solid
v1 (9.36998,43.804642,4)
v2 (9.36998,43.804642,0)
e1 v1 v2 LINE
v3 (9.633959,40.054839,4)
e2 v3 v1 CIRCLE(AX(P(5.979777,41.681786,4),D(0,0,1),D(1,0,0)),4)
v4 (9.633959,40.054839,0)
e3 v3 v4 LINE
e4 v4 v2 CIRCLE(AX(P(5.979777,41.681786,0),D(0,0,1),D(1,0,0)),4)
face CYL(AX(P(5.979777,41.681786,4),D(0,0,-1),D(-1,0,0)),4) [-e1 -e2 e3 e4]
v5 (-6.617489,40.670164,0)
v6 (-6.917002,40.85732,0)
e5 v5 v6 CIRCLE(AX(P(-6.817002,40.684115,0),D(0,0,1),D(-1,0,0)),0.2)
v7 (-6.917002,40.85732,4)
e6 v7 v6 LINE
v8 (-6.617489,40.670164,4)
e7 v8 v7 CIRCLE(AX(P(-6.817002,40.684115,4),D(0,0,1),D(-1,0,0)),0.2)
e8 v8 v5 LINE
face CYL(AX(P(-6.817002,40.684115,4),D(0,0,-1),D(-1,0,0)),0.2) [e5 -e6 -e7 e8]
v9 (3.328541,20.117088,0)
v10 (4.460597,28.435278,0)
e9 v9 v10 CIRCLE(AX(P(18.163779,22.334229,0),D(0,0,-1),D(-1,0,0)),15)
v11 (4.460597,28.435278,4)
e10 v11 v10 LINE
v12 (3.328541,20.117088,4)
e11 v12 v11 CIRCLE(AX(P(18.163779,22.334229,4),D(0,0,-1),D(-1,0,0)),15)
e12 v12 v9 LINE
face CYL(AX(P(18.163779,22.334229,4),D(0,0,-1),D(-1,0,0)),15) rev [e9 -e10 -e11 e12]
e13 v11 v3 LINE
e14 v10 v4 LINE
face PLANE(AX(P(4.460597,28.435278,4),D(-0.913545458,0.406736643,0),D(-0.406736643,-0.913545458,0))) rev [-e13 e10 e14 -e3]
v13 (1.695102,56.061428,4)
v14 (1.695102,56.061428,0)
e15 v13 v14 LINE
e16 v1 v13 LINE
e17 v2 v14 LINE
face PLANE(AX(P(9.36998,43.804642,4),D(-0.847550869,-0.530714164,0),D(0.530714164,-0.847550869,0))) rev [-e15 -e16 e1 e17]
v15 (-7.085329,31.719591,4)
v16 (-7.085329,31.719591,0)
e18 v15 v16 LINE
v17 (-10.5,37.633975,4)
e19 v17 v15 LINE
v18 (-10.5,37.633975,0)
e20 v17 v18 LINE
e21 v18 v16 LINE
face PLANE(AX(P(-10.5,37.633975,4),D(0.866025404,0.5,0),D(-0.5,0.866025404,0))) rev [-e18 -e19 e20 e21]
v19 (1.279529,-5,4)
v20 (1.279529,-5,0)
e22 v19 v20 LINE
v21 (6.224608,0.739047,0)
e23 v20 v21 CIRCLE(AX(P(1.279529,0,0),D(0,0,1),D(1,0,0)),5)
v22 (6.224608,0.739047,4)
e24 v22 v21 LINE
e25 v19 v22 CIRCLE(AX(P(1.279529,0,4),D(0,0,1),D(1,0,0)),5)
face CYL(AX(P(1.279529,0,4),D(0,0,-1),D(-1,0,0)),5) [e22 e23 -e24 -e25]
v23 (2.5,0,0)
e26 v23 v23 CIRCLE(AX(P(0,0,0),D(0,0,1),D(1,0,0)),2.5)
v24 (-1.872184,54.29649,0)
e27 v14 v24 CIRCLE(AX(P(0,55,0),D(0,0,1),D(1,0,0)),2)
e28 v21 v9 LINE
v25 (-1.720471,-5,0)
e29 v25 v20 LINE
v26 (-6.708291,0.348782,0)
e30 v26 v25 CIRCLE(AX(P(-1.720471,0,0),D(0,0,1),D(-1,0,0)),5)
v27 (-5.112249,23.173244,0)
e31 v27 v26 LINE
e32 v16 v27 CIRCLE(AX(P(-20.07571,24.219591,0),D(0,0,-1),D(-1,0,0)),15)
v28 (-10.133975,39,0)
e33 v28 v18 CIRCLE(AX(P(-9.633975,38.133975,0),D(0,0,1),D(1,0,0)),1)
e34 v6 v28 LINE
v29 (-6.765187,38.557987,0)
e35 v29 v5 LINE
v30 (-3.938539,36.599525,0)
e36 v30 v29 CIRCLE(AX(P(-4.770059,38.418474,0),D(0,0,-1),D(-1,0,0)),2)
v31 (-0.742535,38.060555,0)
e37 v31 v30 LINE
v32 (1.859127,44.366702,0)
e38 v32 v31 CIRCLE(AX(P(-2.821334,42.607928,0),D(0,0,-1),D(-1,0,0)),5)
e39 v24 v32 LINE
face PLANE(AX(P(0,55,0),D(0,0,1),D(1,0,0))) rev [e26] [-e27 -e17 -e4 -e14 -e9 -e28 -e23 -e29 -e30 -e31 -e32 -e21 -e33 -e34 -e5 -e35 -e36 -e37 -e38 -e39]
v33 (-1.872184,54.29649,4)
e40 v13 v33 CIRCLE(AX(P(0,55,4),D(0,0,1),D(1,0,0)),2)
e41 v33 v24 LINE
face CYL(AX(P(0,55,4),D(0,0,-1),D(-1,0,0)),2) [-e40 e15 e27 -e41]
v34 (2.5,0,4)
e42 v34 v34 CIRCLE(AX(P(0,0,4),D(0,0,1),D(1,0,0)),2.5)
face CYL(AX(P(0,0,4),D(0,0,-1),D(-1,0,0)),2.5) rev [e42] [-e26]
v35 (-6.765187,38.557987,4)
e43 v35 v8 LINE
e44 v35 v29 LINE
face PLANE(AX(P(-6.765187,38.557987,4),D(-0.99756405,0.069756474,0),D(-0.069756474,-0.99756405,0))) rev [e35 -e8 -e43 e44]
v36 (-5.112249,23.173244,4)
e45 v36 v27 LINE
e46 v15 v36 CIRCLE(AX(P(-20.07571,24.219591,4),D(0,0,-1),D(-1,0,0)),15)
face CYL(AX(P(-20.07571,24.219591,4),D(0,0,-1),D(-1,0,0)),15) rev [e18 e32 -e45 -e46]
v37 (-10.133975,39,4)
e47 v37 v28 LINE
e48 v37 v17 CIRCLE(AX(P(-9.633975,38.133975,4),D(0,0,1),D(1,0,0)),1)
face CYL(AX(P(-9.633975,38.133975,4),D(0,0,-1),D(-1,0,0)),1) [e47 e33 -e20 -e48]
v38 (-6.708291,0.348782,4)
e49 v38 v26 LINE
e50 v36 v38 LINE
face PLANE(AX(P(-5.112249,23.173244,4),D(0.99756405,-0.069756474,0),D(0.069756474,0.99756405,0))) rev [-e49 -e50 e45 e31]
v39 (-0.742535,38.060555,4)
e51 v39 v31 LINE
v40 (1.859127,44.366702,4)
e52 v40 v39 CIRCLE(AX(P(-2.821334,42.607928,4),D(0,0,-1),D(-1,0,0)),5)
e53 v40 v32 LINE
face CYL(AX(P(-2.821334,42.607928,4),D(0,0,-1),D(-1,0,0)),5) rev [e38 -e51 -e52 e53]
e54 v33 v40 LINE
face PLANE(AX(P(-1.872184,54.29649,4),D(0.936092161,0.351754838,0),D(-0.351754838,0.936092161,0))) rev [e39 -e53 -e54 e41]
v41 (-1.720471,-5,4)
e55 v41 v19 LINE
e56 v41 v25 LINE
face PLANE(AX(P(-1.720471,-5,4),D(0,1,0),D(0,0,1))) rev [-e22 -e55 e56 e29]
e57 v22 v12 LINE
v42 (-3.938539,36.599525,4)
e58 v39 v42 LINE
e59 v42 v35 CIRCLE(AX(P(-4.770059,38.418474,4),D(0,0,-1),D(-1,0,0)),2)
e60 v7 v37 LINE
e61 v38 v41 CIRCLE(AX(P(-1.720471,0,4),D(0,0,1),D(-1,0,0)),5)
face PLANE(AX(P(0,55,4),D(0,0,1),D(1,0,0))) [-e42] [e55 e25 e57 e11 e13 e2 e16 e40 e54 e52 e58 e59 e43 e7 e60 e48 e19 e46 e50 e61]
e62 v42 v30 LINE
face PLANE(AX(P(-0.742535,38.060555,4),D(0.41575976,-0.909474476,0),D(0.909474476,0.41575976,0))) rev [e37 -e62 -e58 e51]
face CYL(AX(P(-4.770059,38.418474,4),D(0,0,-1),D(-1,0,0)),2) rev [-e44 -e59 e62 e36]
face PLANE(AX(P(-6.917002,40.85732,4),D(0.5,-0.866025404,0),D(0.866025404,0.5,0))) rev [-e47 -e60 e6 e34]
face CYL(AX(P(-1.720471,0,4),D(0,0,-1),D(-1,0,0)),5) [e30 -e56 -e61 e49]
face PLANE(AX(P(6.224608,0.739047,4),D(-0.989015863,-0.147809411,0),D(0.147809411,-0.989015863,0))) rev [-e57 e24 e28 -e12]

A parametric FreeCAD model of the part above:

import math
import FreeCAD as App
import Part
import Sketcher

V = App.Vector
Q = App.Units.Quantity

doc = App.newDocument("Part")
body = doc.addObject("PartDesign::Body", "Body")

sketch1 = body.newObject("Sketcher::SketchObject", "Sketch")
sketch1.AttachmentSupport = (doc.getObject("XY_Plane"), [""])
sketch1.MapMode = "FlatFace"
sketch1.addGeometry(Part.LineSegment(V(-1.72, -5, 0), V(1.28, -5, 0)), False)
sketch1.addGeometry(Part.ArcOfCircle(Part.Circle(V(1.28, 0, 0), V(0, 0, 1), 5), math.radians(-90), math.radians(8)), False)
sketch1.addGeometry(Part.LineSegment(V(6.22, 0.74, 0), V(3.33, 20.12, 0)), False)
sketch1.addGeometry(Part.ArcOfCircle(Part.Circle(V(18.16, 22.33, 0), V(0, 0, 1), 15), math.radians(156), math.radians(188)), False)
sketch1.addGeometry(Part.LineSegment(V(4.46, 28.44, 0), V(9.63, 40.05, 0)), False)
sketch1.addGeometry(Part.ArcOfCircle(Part.Circle(V(5.98, 41.68, 0), V(0, 0, 1), 4), math.radians(-24), math.radians(32)), False)
sketch1.addGeometry(Part.LineSegment(V(9.37, 43.8, 0), V(1.7, 56.06, 0)), False)
sketch1.addGeometry(Part.ArcOfCircle(Part.Circle(V(0, 55, 0), V(0, 0, 1), 2), math.radians(32), math.radians(201)), False)
sketch1.addGeometry(Part.LineSegment(V(-1.87, 54.3, 0), V(1.86, 44.37, 0)), False)
sketch1.addGeometry(Part.ArcOfCircle(Part.Circle(V(-2.82, 42.61, 0), V(0, 0, 1), 5), math.radians(-65), math.radians(21)), False)
sketch1.addGeometry(Part.LineSegment(V(-0.74, 38.06, 0), V(-3.94, 36.6, 0)), False)
sketch1.addGeometry(Part.ArcOfCircle(Part.Circle(V(-4.77, 38.42, 0), V(0, 0, 1), 2), math.radians(176), math.radians(295)), False)
sketch1.addGeometry(Part.LineSegment(V(-6.77, 38.56, 0), V(-6.62, 40.67, 0)), False)
sketch1.addGeometry(Part.ArcOfCircle(Part.Circle(V(-6.82, 40.68, 0), V(0, 0, 1), 0.2), math.radians(-4), math.radians(120)), False)
sketch1.addGeometry(Part.LineSegment(V(-6.92, 40.86, 0), V(-10.13, 39, 0)), False)
sketch1.addGeometry(Part.ArcOfCircle(Part.Circle(V(-9.63, 38.13, 0), V(0, 0, 1), 1), math.radians(120), math.radians(210)), False)
sketch1.addGeometry(Part.LineSegment(V(-10.5, 37.63, 0), V(-7.09, 31.72, 0)), False)
sketch1.addGeometry(Part.ArcOfCircle(Part.Circle(V(-20.08, 24.22, 0), V(0, 0, 1), 15), math.radians(-4), math.radians(30)), False)
sketch1.addGeometry(Part.LineSegment(V(-5.11, 23.17, 0), V(-6.71, 0.35, 0)), False)
sketch1.addGeometry(Part.ArcOfCircle(Part.Circle(V(-1.72, 0, 0), V(0, 0, 1), 5), math.radians(176), math.radians(270)), False)
sketch1.addGeometry(Part.Circle(V(0, 0, 0), V(0, 0, 1), 2.5), False)
sketch1.addConstraint(Sketcher.Constraint("Tangent", 0, 2, 1, 1))
sketch1.addConstraint(Sketcher.Constraint("Tangent", 1, 2, 2, 1))
sketch1.addConstraint(Sketcher.Constraint("Tangent", 2, 2, 3, 2))
sketch1.addConstraint(Sketcher.Constraint("Tangent", 3, 1, 4, 1))
sketch1.addConstraint(Sketcher.Constraint("Tangent", 4, 2, 5, 1))
sketch1.addConstraint(Sketcher.Constraint("Tangent", 5, 2, 6, 1))
sketch1.addConstraint(Sketcher.Constraint("Tangent", 6, 2, 7, 1))
sketch1.addConstraint(Sketcher.Constraint("Tangent", 7, 2, 8, 1))
sketch1.addConstraint(Sketcher.Constraint("Tangent", 8, 2, 9, 2))
sketch1.addConstraint(Sketcher.Constraint("Tangent", 9, 1, 10, 1))
sketch1.addConstraint(Sketcher.Constraint("Tangent", 10, 2, 11, 2))
sketch1.addConstraint(Sketcher.Constraint("Tangent", 11, 1, 12, 1))
sketch1.addConstraint(Sketcher.Constraint("Tangent", 12, 2, 13, 1))
sketch1.addConstraint(Sketcher.Constraint("Tangent", 13, 2, 14, 1))
sketch1.addConstraint(Sketcher.Constraint("Tangent", 14, 2, 15, 1))
sketch1.addConstraint(Sketcher.Constraint("Tangent", 15, 2, 16, 1))
sketch1.addConstraint(Sketcher.Constraint("Tangent", 16, 2, 17, 2))
sketch1.addConstraint(Sketcher.Constraint("Tangent", 17, 1, 18, 1))
sketch1.addConstraint(Sketcher.Constraint("Tangent", 18, 2, 19, 1))
sketch1.addConstraint(Sketcher.Constraint("Tangent", 19, 2, 0, 1))
sketch1.addConstraint(Sketcher.Constraint("Horizontal", 0))
sketch1.addConstraint(Sketcher.Constraint("Coincident", 20, 3, -1, 1))
sketch1.addConstraint(Sketcher.Constraint("Equal", 1, 9))
sketch1.addConstraint(Sketcher.Constraint("Equal", 7, 11))
sketch1.addConstraint(Sketcher.Constraint("Equal", 3, 17))
sketch1.addConstraint(Sketcher.Constraint("Equal", 9, 19))
sketch1.addConstraint(Sketcher.Constraint("PointOnObject", 1, 3, -1))
sketch1.addConstraint(Sketcher.Constraint("PointOnObject", 7, 3, -2))
sketch1.addConstraint(Sketcher.Constraint("Perpendicular", 14, 16))
sketch1.addConstraint(Sketcher.Constraint("Parallel", 12, 18))
sketch1.addConstraint(Sketcher.Constraint("Diameter", 20, Q("5 mm")))
sketch1.addConstraint(Sketcher.Constraint("Radius", 1, Q("5 mm")))
sketch1.addConstraint(Sketcher.Constraint("Radius", 3, Q("15 mm")))
sketch1.addConstraint(Sketcher.Constraint("Radius", 5, Q("4 mm")))
sketch1.addConstraint(Sketcher.Constraint("Radius", 7, Q("2 mm")))
sketch1.addConstraint(Sketcher.Constraint("Radius", 15, Q("1 mm")))
sketch1.addConstraint(Sketcher.Constraint("Radius", 13, Q("0.2 mm")))
sketch1.addConstraint(Sketcher.Constraint("DistanceX", 0, 1, 0, 2, Q("3 mm")))
sketch1.addConstraint(Sketcher.Constraint("Angle", 4, Q("66 deg")))
sketch1.addConstraint(Sketcher.Constraint("Angle", 12, Q("86 deg")))
sketch1.addConstraint(Sketcher.Constraint("Angle", 14, Q("-150 deg")))
sketch1.addConstraint(Sketcher.Constraint("DistanceY", -1, 1, 7, 3, Q("55 mm")))
sketch1.addConstraint(Sketcher.Constraint("DistanceY", -1, 1, 14, 2, Q("39 mm")))
sketch1.addConstraint(Sketcher.Constraint("Angle", 2, Q("98.5 deg")))
sketch1.addConstraint(Sketcher.Constraint("DistanceX", 15, 2, -1, 1, Q("10.5 mm")))
sketch1.addConstraint(Sketcher.Constraint("DistanceX", 13, 3, -1, 1, Q("6.817002 mm")))
sketch1.addConstraint(Sketcher.Constraint("DistanceX", 5, 3, 3, 3, Q("12.184002 mm")))
sketch1.addConstraint(Sketcher.Constraint("DistanceX", -1, 1, 6, 2, Q("1.695102 mm")))
sketch1.addConstraint(Sketcher.Constraint("DistanceY", -1, 1, 8, 2, Q("44.366702 mm")))
sketch1.addConstraint(Sketcher.Constraint("DistanceY", 3, 3, 9, 3, Q("20.273699 mm")))
sketch1.addConstraint(Sketcher.Constraint("DistanceY", 15, 3, 11, 3, Q("0.284499 mm")))
sketch1.addConstraint(Sketcher.Constraint("DistanceX", 11, 3, 2, 2, Q("8.098599 mm")))
pad1 = body.newObject("PartDesign::Pad", "Pad")
pad1.Profile = sketch1
pad1.Length = 4

doc.recompute()
